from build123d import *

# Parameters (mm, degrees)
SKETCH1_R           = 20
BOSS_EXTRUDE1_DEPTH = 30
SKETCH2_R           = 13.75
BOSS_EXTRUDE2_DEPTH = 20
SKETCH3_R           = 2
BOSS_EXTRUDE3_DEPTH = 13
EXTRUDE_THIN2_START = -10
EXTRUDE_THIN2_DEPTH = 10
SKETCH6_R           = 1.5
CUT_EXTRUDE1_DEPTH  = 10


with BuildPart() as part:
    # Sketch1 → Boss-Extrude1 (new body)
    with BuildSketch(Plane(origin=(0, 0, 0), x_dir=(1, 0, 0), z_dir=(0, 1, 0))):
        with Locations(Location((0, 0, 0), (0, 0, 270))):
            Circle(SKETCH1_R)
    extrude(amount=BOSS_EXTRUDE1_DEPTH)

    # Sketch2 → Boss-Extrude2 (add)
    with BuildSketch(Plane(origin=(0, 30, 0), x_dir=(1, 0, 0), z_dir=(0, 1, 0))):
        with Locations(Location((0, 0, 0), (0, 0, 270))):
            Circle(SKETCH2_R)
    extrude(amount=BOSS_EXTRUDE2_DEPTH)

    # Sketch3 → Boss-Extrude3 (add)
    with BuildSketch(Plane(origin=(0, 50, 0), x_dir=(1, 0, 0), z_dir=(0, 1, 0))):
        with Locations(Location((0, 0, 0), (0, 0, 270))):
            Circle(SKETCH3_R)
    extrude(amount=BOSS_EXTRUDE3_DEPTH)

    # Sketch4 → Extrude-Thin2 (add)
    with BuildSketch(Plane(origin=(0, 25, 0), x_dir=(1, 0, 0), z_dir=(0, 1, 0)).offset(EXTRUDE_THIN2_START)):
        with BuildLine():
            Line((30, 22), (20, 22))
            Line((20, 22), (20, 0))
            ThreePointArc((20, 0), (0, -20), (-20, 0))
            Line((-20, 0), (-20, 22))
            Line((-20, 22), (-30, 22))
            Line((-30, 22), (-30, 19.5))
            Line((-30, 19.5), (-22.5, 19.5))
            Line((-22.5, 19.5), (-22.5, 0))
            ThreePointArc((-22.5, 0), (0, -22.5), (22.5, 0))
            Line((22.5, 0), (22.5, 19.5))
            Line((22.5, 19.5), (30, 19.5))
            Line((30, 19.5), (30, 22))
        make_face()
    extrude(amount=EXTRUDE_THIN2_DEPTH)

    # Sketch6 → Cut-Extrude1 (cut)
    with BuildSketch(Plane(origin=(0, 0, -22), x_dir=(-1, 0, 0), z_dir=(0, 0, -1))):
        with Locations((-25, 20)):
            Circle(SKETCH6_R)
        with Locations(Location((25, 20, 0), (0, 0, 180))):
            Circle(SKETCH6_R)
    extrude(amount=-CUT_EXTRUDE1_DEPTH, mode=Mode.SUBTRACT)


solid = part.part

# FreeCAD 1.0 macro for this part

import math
import FreeCAD as App
import Part
import Sketcher

doc = App.newDocument("Part")
params = doc.addObject("Spreadsheet::Sheet", "Params")
for row, (alias, value) in enumerate([
    ("sketch1_diameter", "40 mm"),
    ("pad1_length", "30 mm"),
    ("sketch2_diameter", "27.5 mm"),
    ("pad2_length", "20 mm"),
    ("sketch3_diameter", "4 mm"),
    ("pad3_length", "13 mm"),
    ("sketch4_radius", "20 mm"),
    ("sketch4_radius2", "22.5 mm"),
    ("sketch4_width", "10 mm"),
    ("sketch4_height", "22 mm"),
    ("sketch4_height2", "2.5 mm"),
    ("pad4_length", "10 mm"),
    ("sketch5_diameter", "3 mm"),
    ("pocket1_length", "10 mm"),
], start=1):
    params.set(f"A{row}", alias)
    params.set(f"B{row}", "=" + value)
    params.setAlias(f"B{row}", alias)

body = doc.addObject("PartDesign::Body", "Body")

sketch1 = doc.addObject("Sketcher::SketchObject", "Sketch")
body.addObject(sketch1)
sketch1.AttachmentSupport = (doc.XZ_Plane, [""])
sketch1.MapMode = "FlatFace"
sketch1.addGeometry(Part.Circle(App.Vector(0, 0, 0), App.Vector(0, 0, 1), 20), False)
sketch1.addConstraint([
    Sketcher.Constraint("Coincident", 0, 3, -1, 1),
    Sketcher.Constraint("Diameter", 0, 40.0),
])
sketch1.setExpression("Constraints[1]", "Params.sketch1_diameter")
pad1 = doc.addObject("PartDesign::Pad", "Pad")
body.addObject(pad1)
pad1.Profile = sketch1
pad1.setExpression("Length", "Params.pad1_length")
pad1.Reversed = True

sketch2 = doc.addObject("Sketcher::SketchObject", "Sketch001")
body.addObject(sketch2)
sketch2.AttachmentSupport = (doc.XZ_Plane, [""])
sketch2.MapMode = "FlatFace"
sketch2.AttachmentOffset = App.Placement(App.Vector(0, 0, -30), App.Rotation())
sketch2.addGeometry(Part.Circle(App.Vector(0, 0, 0), App.Vector(0, 0, 1), 14), False)
sketch2.addConstraint([
    Sketcher.Constraint("Coincident", 0, 3, -1, 1),
    Sketcher.Constraint("Diameter", 0, 27.5),
])
sketch2.setExpression("Constraints[1]", "Params.sketch2_diameter")
pad2 = doc.addObject("PartDesign::Pad", "Pad001")
body.addObject(pad2)
pad2.Profile = sketch2
pad2.setExpression("Length", "Params.pad2_length")
pad2.Reversed = True

sketch3 = doc.addObject("Sketcher::SketchObject", "Sketch002")
body.addObject(sketch3)
sketch3.AttachmentSupport = (doc.XZ_Plane, [""])
sketch3.MapMode = "FlatFace"
sketch3.AttachmentOffset = App.Placement(App.Vector(0, 0, -50), App.Rotation())
sketch3.addGeometry(Part.Circle(App.Vector(0, 0, 0), App.Vector(0, 0, 1), 2), False)
sketch3.addConstraint([
    Sketcher.Constraint("Coincident", 0, 3, -1, 1),
    Sketcher.Constraint("Diameter", 0, 4.0),
])
sketch3.setExpression("Constraints[1]", "Params.sketch3_diameter")
pad3 = doc.addObject("PartDesign::Pad", "Pad002")
body.addObject(pad3)
pad3.Profile = sketch3
pad3.setExpression("Length", "Params.pad3_length")
pad3.Reversed = True

sketch4 = doc.addObject("Sketcher::SketchObject", "Sketch003")
body.addObject(sketch4)
sketch4.AttachmentSupport = (doc.XZ_Plane, [""])
sketch4.MapMode = "FlatFace"
sketch4.AttachmentOffset = App.Placement(App.Vector(0, 0, -15), App.Rotation())
sketch4.addGeometry([
    Part.LineSegment(App.Vector(30, -22, 0), App.Vector(20, -22, 0)),
    Part.LineSegment(App.Vector(20, -22, 0), App.Vector(20, 0, 0)),
    Part.ArcOfCircle(Part.Circle(App.Vector(0, 0, 0), App.Vector(0, 0, 1), 20), math.radians(0), math.radians(180)),
    Part.LineSegment(App.Vector(-20, 0, 0), App.Vector(-20, -22, 0)),
    Part.LineSegment(App.Vector(-20, -22, 0), App.Vector(-30, -22, 0)),
    Part.LineSegment(App.Vector(-30, -22, 0), App.Vector(-30, -19.5, 0)),
    Part.LineSegment(App.Vector(-30, -19.5, 0), App.Vector(-22.5, -19.5, 0)),
    Part.LineSegment(App.Vector(-22.5, -19.5, 0), App.Vector(-22.5, 0, 0)),
    Part.ArcOfCircle(Part.Circle(App.Vector(0, 0, 0), App.Vector(0, 0, 1), 22.5), math.radians(0), math.radians(180)),
    Part.LineSegment(App.Vector(22.5, 0, 0), App.Vector(22.5, -19.5, 0)),
    Part.LineSegment(App.Vector(22.5, -19.5, 0), App.Vector(30, -19.5, 0)),
    Part.LineSegment(App.Vector(30, -19.5, 0), App.Vector(30, -22, 0)),
], False)
sketch4.addConstraint([
    Sketcher.Constraint("Coincident", 0, 2, 1, 1),
    Sketcher.Constraint("Tangent", 1, 2, 2, 1),
    Sketcher.Constraint("Tangent", 2, 2, 3, 1),
    Sketcher.Constraint("Coincident", 3, 2, 4, 1),
    Sketcher.Constraint("Coincident", 4, 2, 5, 1),
    Sketcher.Constraint("Coincident", 5, 2, 6, 1),
    Sketcher.Constraint("Coincident", 6, 2, 7, 1),
    Sketcher.Constraint("Tangent", 7, 2, 8, 2),
    Sketcher.Constraint("Tangent", 8, 1, 9, 1),
    Sketcher.Constraint("Coincident", 9, 2, 10, 1),
    Sketcher.Constraint("Coincident", 10, 2, 11, 1),
    Sketcher.Constraint("Coincident", 11, 2, 0, 1),
    Sketcher.Constraint("Horizontal", 0),
    Sketcher.Constraint("Vertical", 1),
    Sketcher.Constraint("Vertical", 3),
    Sketcher.Constraint("Horizontal", 4),
    Sketcher.Constraint("Vertical", 5),
    Sketcher.Constraint("Horizontal", 6),
    Sketcher.Constraint("Vertical", 7),
    Sketcher.Constraint("Vertical", 9),
    Sketcher.Constraint("Horizontal", 10),
    Sketcher.Constraint("Vertical", 11),
    Sketcher.Constraint("Coincident", 2, 3, -1, 1),
    Sketcher.Constraint("Coincident", 8, 3, -1, 1),
    Sketcher.Constraint("Symmetric", 5, 2, 10, 2, -2),
    Sketcher.Constraint("Horizontal", 0, 2, 3, 2),
    Sketcher.Constraint("Radius", 2, 20.0),
    Sketcher.Constraint("Radius", 8, 22.5),
    Sketcher.Constraint("DistanceX", 0, 2, 0, 1, 10.0),
    Sketcher.Constraint("DistanceY", 1, 1, 1, 2, 22.0),
    Sketcher.Constraint("DistanceY", 5, 1, 5, 2, 2.5),
])
sketch4.setExpression("Constraints[26]", "Params.sketch4_radius")
sketch4.setExpression("Constraints[27]", "Params.sketch4_radius2")
sketch4.setExpression("Constraints[28]", "Params.sketch4_width")
sketch4.setExpression("Constraints[29]", "Params.sketch4_height")
sketch4.setExpression("Constraints[30]", "Params.sketch4_height2")
pad4 = doc.addObject("PartDesign::Pad", "Pad003")
body.addObject(pad4)
pad4.Profile = sketch4
pad4.setExpression("Length", "Params.pad4_length")
pad4.Reversed = True

sketch5 = doc.addObject("Sketcher::SketchObject", "Sketch004")
body.addObject(sketch5)
sketch5.AttachmentSupport = (doc.XY_Plane, [""])
sketch5.MapMode = "FlatFace"
sketch5.AttachmentOffset = App.Placement(App.Vector(0, 0, -22), App.Rotation())
sketch5.addGeometry([
    Part.Circle(App.Vector(25, 20, 0), App.Vector(0, 0, 1), 1.5),
    Part.Circle(App.Vector(-25, 20, 0), App.Vector(0, 0, 1), 1.5),
], False)
sketch5.addConstraint([
    Sketcher.Constraint("Equal", 0, 1),
    Sketcher.Constraint("Symmetric", 0, 3, 1, 3, -2),
    Sketcher.Constraint("Diameter", 0, 3.0),
    Sketcher.Constraint("DistanceX", -1, 1, 0, 3, 25.0),
    Sketcher.Constraint("DistanceY", -1, 1, 0, 3, 20.0),
])
sketch5.setExpression("Constraints[2]", "Params.sketch5_diameter")
pocket1 = doc.addObject("PartDesign::Pocket", "Pocket")
body.addObject(pocket1)
pocket1.Profile = sketch5
pocket1.setExpression("Length", "Params.pocket1_length")
pocket1.Reversed = True

doc.recompute()
